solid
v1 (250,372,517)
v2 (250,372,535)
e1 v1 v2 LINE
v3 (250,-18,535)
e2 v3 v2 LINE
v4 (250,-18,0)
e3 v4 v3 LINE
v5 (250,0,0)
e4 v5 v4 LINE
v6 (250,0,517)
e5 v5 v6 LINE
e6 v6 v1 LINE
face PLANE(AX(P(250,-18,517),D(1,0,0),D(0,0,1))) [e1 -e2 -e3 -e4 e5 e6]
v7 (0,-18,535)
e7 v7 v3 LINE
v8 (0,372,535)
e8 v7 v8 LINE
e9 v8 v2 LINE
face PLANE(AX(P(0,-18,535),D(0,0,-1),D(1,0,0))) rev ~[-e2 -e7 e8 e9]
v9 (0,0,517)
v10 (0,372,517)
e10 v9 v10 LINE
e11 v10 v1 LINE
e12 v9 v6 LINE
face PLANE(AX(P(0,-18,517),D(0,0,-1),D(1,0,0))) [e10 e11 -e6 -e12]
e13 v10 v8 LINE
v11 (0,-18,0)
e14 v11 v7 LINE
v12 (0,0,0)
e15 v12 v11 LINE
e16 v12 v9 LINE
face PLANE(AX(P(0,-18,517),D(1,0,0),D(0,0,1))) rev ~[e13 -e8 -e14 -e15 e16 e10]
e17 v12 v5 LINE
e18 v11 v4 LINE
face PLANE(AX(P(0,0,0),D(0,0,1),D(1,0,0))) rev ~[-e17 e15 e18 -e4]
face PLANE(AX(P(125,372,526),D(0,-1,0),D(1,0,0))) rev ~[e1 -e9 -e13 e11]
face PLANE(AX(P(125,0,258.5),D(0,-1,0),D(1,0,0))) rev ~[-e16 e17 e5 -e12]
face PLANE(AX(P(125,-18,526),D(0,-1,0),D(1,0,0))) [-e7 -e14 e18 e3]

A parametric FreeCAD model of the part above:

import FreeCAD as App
import Part
import Sketcher

V = App.Vector


def add_polygon(sketch, points):
    """Adds a closed chain of lines whose ends are joined by coincident constraints."""
    first, n = sketch.GeometryCount, len(points)
    for a, b in zip(points, points[1:] + points[:1]):
        sketch.addGeometry(Part.LineSegment(App.Vector(*a, 0), App.Vector(*b, 0)), False)
    for i in range(n):
        sketch.addConstraint(Sketcher.Constraint("Coincident", first + i, 2, first + (i + 1) % n, 1))

doc = App.newDocument("Part")
body = doc.addObject("PartDesign::Body", "Body")

sketch1 = body.newObject("Sketcher::SketchObject", "Sketch")
sketch1.AttachmentSupport = (doc.getObject("XZ_Plane"), [""])
sketch1.MapMode = "FlatFace"
add_polygon(sketch1, [(0, 517), (0, 0), (250, 0), (250, 517)])
sketch1.addConstraint([
    Sketcher.Constraint("Vertical", 0),
    Sketcher.Constraint("Horizontal", 1),
    Sketcher.Constraint("Vertical", 2),
    Sketcher.Constraint("Horizontal", 3),
    Sketcher.Constraint("Coincident", 0, 2, -1, 1),
    Sketcher.Constraint("DistanceX", 1, 1, 1, 2, 250.0),
    Sketcher.Constraint("DistanceY", 0, 2, 0, 1, 517.0),
])
pad1 = body.newObject("PartDesign::Pad", "Pad")
pad1.Profile = sketch1
pad1.Length = 18

sketch2 = body.newObject("Sketcher::SketchObject", "Sketch001")
sketch2.AttachmentSupport = (doc.getObject("XZ_Plane"), [""])
sketch2.MapMode = "FlatFace"
sketch2.AttachmentOffset = App.Placement(V(0, 0, 18), App.Rotation())
add_polygon(sketch2, [(0, 535), (0, 517), (250, 517), (250, 535)])
sketch2.addConstraint([
    Sketcher.Constraint("Vertical", 0),
    Sketcher.Constraint("Horizontal", 1),
    Sketcher.Constraint("Vertical", 2),
    Sketcher.Constraint("Horizontal", 3),
    Sketcher.Constraint("PointOnObject", 0, 2, -2),
    Sketcher.Constraint("DistanceX", 1, 1, 1, 2, 250.0),
    Sketcher.Constraint("DistanceY", 0, 2, 0, 1, 18.0),
    Sketcher.Constraint("DistanceY", -1, 1, 0, 2, 517.0),
])
pad2 = body.newObject("PartDesign::Pad", "Pad001")
pad2.Profile = sketch2
pad2.Length = 390
pad2.Reversed = True

doc.recompute()
